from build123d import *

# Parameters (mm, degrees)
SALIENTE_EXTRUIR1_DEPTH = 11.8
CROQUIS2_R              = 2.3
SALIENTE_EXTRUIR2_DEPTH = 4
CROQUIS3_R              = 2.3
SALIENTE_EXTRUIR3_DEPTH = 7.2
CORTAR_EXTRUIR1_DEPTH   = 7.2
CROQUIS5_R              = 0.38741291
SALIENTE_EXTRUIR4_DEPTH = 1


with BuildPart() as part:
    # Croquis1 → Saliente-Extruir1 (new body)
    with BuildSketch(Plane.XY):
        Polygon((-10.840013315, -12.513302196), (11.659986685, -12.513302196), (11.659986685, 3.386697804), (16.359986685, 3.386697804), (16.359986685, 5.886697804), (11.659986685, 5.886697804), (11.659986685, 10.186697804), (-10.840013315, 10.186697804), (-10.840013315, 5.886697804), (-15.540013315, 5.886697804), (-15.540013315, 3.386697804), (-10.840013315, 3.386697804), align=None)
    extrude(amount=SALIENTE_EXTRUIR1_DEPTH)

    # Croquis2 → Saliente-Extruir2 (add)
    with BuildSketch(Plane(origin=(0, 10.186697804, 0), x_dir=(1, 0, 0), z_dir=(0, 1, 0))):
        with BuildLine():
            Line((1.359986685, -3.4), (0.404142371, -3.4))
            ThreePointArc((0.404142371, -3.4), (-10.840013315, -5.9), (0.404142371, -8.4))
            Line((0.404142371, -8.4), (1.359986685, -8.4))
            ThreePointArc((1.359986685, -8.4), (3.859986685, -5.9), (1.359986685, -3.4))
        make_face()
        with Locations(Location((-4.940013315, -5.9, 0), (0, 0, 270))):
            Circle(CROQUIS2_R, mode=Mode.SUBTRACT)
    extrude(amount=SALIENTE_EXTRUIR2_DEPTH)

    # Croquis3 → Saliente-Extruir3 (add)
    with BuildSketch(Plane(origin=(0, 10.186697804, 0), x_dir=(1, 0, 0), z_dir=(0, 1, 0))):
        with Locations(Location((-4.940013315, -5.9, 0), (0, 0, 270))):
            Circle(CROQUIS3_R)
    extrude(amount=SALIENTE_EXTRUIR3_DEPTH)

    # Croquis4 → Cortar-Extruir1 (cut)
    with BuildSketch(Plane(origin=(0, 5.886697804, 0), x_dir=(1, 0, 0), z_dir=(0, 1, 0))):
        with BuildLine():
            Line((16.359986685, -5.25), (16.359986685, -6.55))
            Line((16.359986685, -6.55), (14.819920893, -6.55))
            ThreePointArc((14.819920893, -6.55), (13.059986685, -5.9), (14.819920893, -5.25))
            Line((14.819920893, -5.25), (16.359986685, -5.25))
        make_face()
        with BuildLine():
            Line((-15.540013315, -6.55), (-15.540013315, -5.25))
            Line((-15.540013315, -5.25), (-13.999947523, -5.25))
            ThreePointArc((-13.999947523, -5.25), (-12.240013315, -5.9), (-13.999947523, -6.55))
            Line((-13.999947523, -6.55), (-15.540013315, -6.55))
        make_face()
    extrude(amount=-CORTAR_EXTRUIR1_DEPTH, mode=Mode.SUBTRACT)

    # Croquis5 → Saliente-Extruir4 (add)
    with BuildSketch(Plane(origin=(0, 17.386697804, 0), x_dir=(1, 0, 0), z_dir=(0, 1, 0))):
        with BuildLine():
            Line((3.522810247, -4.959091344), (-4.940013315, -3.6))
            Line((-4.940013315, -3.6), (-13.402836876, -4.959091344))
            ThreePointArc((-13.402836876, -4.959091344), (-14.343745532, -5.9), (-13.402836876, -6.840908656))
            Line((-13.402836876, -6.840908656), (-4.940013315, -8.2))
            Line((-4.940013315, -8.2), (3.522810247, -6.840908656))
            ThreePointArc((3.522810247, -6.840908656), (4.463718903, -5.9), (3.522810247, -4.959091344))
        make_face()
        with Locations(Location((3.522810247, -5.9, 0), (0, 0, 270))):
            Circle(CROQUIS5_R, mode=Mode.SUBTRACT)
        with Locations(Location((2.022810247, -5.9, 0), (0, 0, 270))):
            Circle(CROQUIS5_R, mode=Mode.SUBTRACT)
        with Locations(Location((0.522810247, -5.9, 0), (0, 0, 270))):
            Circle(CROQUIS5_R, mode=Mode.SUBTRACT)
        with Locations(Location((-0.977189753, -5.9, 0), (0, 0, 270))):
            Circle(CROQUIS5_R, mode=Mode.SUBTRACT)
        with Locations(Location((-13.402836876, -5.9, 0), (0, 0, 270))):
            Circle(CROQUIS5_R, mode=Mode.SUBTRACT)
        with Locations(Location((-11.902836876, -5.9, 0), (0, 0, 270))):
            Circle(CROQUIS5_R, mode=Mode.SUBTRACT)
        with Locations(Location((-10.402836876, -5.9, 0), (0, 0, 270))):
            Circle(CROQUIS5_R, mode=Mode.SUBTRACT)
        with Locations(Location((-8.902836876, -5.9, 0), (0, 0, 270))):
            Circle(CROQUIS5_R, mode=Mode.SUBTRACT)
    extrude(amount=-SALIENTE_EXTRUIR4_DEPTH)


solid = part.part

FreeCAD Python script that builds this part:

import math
import FreeCAD as App
import Part
import Sketcher
from FreeCAD import Vector


def add_polygon(sketch, points):
    """Adds a closed chain of lines whose ends are joined by coincident constraints."""
    first, n = sketch.GeometryCount, len(points)
    for a, b in zip(points, points[1:] + points[:1]):
        sketch.addGeometry(Part.LineSegment(App.Vector(*a, 0), App.Vector(*b, 0)), False)
    for i in range(n):
        sketch.addConstraint(Sketcher.Constraint("Coincident", first + i, 2, first + (i + 1) % n, 1))

doc = App.newDocument("Part")
body = doc.addObject("PartDesign::Body", "Body")

# Sketch on XY plane
sketch1 = body.newObject("Sketcher::SketchObject", "Sketch")
sketch1.AttachmentSupport = (doc.getObject("XY_Plane"), [""])
sketch1.MapMode = "FlatFace"
add_polygon(sketch1, [(-10.8, -12.5), (11.7, -12.5), (11.7, 3.4), (16.4, 3.4), (16.4, 5.9), (11.7, 5.9), (11.7, 10.2), (-10.8, 10.2), (-10.8, 5.9), (-15.5, 5.9), (-15.5, 3.4), (-10.8, 3.4)])  # lines 0-11
sketch1.addConstraint(Sketcher.Constraint("Horizontal", 0))
sketch1.addConstraint(Sketcher.Constraint("Vertical", 1))
sketch1.addConstraint(Sketcher.Constraint("Horizontal", 2))
sketch1.addConstraint(Sketcher.Constraint("Vertical", 3))
sketch1.addConstraint(Sketcher.Constraint("Horizontal", 4))
sketch1.addConstraint(Sketcher.Constraint("Vertical", 5))
sketch1.addConstraint(Sketcher.Constraint("Horizontal", 6))
sketch1.addConstraint(Sketcher.Constraint("Vertical", 7))
sketch1.addConstraint(Sketcher.Constraint("Horizontal", 8))
sketch1.addConstraint(Sketcher.Constraint("Vertical", 9))
sketch1.addConstraint(Sketcher.Constraint("Horizontal", 10))
sketch1.addConstraint(Sketcher.Constraint("Vertical", 11))
sketch1.addConstraint(Sketcher.Constraint("Horizontal", 4, 2, 7, 2))
sketch1.addConstraint(Sketcher.Constraint("Horizontal", 2, 2, 9, 2))
sketch1.addConstraint(Sketcher.Constraint("Vertical", 1, 2, 4, 2))
sketch1.addConstraint(Sketcher.Constraint("Vertical", 7, 2, 10, 2))
sketch1.addConstraint(Sketcher.Constraint("Equal", 4, 8))
sketch1.addConstraint(Sketcher.Constraint("DistanceX", 0, 1, 0, 2, 22.5))
sketch1.addConstraint(Sketcher.Constraint("DistanceX", 2, 1, 2, 2, 4.7))
sketch1.addConstraint(Sketcher.Constraint("DistanceY", 1, 1, 1, 2, 15.9))
sketch1.addConstraint(Sketcher.Constraint("DistanceY", 3, 1, 3, 2, 2.5))
sketch1.addConstraint(Sketcher.Constraint("DistanceY", 5, 1, 5, 2, 4.3))
sketch1.addConstraint(Sketcher.Constraint("DistanceX", -1, 1, 0, 2, 11.659987))
sketch1.addConstraint(Sketcher.Constraint("DistanceY", 0, 2, -1, 1, 12.513302))
pad1 = body.newObject("PartDesign::Pad", "Pad")
pad1.Profile = sketch1
pad1.Length = 11.8

# Sketch on XZ plane
sketch2 = body.newObject("Sketcher::SketchObject", "Sketch001")
sketch2.AttachmentSupport = (doc.getObject("XZ_Plane"), [""])
sketch2.MapMode = "FlatFace"
sketch2.AttachmentOffset = App.Placement(Vector(0, 0, -10.186698), App.Rotation())
sketch2.addGeometry(Part.LineSegment(Vector(1.4, 3.4, 0), Vector(0.4, 3.4, 0)), False)
sketch2.addGeometry(Part.ArcOfCircle(Part.Circle(Vector(-4.9, 5.9, 0), Vector(0, 0, 1), 5.9), math.radians(25), math.radians(335)), False)
sketch2.addGeometry(Part.LineSegment(Vector(0.4, 8.4, 0), Vector(1.4, 8.4, 0)), False)
sketch2.addGeometry(Part.ArcOfCircle(Part.Circle(Vector(1.4, 5.9, 0), Vector(0, 0, 1), 2.5), math.radians(-90), math.radians(90)), False)
sketch2.addGeometry(Part.Circle(Vector(-4.9, 5.9, 0), Vector(0, 0, 1), 2.3), False)
sketch2.addConstraint(Sketcher.Constraint("Coincident", 0, 2, 1, 2))
sketch2.addConstraint(Sketcher.Constraint("Coincident", 1, 1, 2, 1))
sketch2.addConstraint(Sketcher.Constraint("Tangent", 2, 2, 3, 2))
sketch2.addConstraint(Sketcher.Constraint("Tangent", 3, 1, 0, 1))
sketch2.addConstraint(Sketcher.Constraint("Horizontal", 0))
sketch2.addConstraint(Sketcher.Constraint("Horizontal", 2))
sketch2.addConstraint(Sketcher.Constraint("Coincident", 4, 3, 1, 3))
sketch2.addConstraint(Sketcher.Constraint("Horizontal", 1, 3, 3, 3))
sketch2.addConstraint(Sketcher.Constraint("Diameter", 4, 4.6))
sketch2.addConstraint(Sketcher.Constraint("Radius", 1, 5.9))
sketch2.addConstraint(Sketcher.Constraint("Radius", 3, 2.5))
sketch2.addConstraint(Sketcher.Constraint("DistanceY", -1, 1, 1, 3, 5.9))
sketch2.addConstraint(Sketcher.Constraint("DistanceX", 1, 3, 3, 3, 6.3))
sketch2.addConstraint(Sketcher.Constraint("DistanceX", 1, 3, -1, 1, 4.940013))
pad2 = body.newObject("PartDesign::Pad", "Pad001")
pad2.Profile = sketch2
pad2.Length = 4
pad2.Reversed = True

# Sketch on XZ plane
sketch3 = body.newObject("Sketcher::SketchObject", "Sketch002")
sketch3.AttachmentSupport = (doc.getObject("XZ_Plane"), [""])
sketch3.MapMode = "FlatFace"
sketch3.AttachmentOffset = App.Placement(Vector(0, 0, -10.186698), App.Rotation())
sketch3.addGeometry(Part.Circle(Vector(-4.9, 5.9, 0), Vector(0, 0, 1), 2.3), False)
sketch3.addConstraint(Sketcher.Constraint("Diameter", 0, 4.6))
sketch3.addConstraint(Sketcher.Constraint("DistanceY", -1, 1, 0, 3, 5.9))
sketch3.addConstraint(Sketcher.Constraint("DistanceX", 0, 3, -1, 1, 4.940013))
pad3 = body.newObject("PartDesign::Pad", "Pad002")
pad3.Profile = sketch3
pad3.Length = 7.2
pad3.Reversed = True

# Sketch on XZ plane
sketch4 = body.newObject("Sketcher::SketchObject", "Sketch003")
sketch4.AttachmentSupport = (doc.getObject("XZ_Plane"), [""])
sketch4.MapMode = "FlatFace"
sketch4.AttachmentOffset = App.Placement(Vector(0, 0, -5.886698), App.Rotation())
sketch4.addGeometry(Part.LineSegment(Vector(16.4, 6.5, 0), Vector(16.4, 5.2, 0)), False)
sketch4.addGeometry(Part.LineSegment(Vector(16.4, 5.2, 0), Vector(14.8, 5.2, 0)), False)
sketch4.addGeometry(Part.ArcOfCircle(Part.Circle(Vector(14.1, 5.9, 0), Vector(0, 0, 1), 1), math.radians(41), math.radians(319)), False)
sketch4.addGeometry(Part.LineSegment(Vector(14.8, 6.5, 0), Vector(16.4, 6.5, 0)), False)
sketch4.addGeometry(Part.LineSegment(Vector(-15.5, 5.2, 0), Vector(-15.5, 6.5, 0)), False)
sketch4.addGeometry(Part.LineSegment(Vector(-15.5, 6.5, 0), Vector(-14, 6.5, 0)), False)
sketch4.addGeometry(Part.ArcOfCircle(Part.Circle(Vector(-13.2, 5.9, 0), Vector(0, 0, 1), 1), math.radians(-139), math.radians(139)), False)
sketch4.addGeometry(Part.LineSegment(Vector(-14, 5.2, 0), Vector(-15.5, 5.2, 0)), False)
sketch4.addConstraint(Sketcher.Constraint("Coincident", 0, 2, 1, 1))
sketch4.addConstraint(Sketcher.Constraint("Coincident", 1, 2, 2, 2))
sketch4.addConstraint(Sketcher.Constraint("Coincident", 2, 1, 3, 1))
sketch4.addConstraint(Sketcher.Constraint("Coincident", 3, 2, 0, 1))
sketch4.addConstraint(Sketcher.Constraint("Coincident", 4, 2, 5, 1))
sketch4.addConstraint(Sketcher.Constraint("Coincident", 5, 2, 6, 2))
sketch4.addConstraint(Sketcher.Constraint("Coincident", 6, 1, 7, 1))
sketch4.addConstraint(Sketcher.Constraint("Coincident", 7, 2, 4, 1))
sketch4.addConstraint(Sketcher.Constraint("Vertical", 0))
sketch4.addConstraint(Sketcher.Constraint("Horizontal", 1))
sketch4.addConstraint(Sketcher.Constraint("Horizontal", 3))
sketch4.addConstraint(Sketcher.Constraint("Vertical", 4))
sketch4.addConstraint(Sketcher.Constraint("Horizontal", 5))
sketch4.addConstraint(Sketcher.Constraint("Horizontal", 7))
sketch4.addConstraint(Sketcher.Constraint("Equal", 2, 6))
sketch4.addConstraint(Sketcher.Constraint("Horizontal", 2, 3, 6, 3))
sketch4.addConstraint(Sketcher.Constraint("Horizontal", 3, 2, 4, 2))
sketch4.addConstraint(Sketcher.Constraint("Horizontal", 1, 2, 6, 1))
sketch4.addConstraint(Sketcher.Constraint("Vertical", 1, 2, 2, 1))
sketch4.addConstraint(Sketcher.Constraint("Equal", 3, 5))
sketch4.addConstraint(Sketcher.Constraint("Radius", 2, 1.0))
sketch4.addConstraint(Sketcher.Constraint("DistanceY", 0, 2, 0, 1, 1.3))
sketch4.addConstraint(Sketcher.Constraint("DistanceY", -1, 1, 2, 3, 5.9))
sketch4.addConstraint(Sketcher.Constraint("DistanceX", 6, 3, 2, 3, 27.3))
sketch4.addConstraint(Sketcher.Constraint("DistanceX", 2, 3, 0, 2, 2.3))
sketch4.addConstraint(Sketcher.Constraint("DistanceX", -1, 1, 1, 2, 14.819921))
pocket1 = body.newObject("PartDesign::Pocket", "Pocket")
pocket1.Profile = sketch4
pocket1.Length = 7.2
pocket1.Reversed = True

# Sketch on XZ plane
sketch5 = body.newObject("Sketcher::SketchObject", "Sketch004")
sketch5.AttachmentSupport = (doc.getObject("XZ_Plane"), [""])
sketch5.MapMode = "FlatFace"
sketch5.AttachmentOffset = App.Placement(Vector(0, 0, -17.386698), App.Rotation())
sketch5.addGeometry(Part.LineSegment(Vector(3.52, 4.96, 0), Vector(-4.94, 3.6, 0)), False)
sketch5.addGeometry(Part.LineSegment(Vector(-4.94, 3.6, 0), Vector(-13.4, 4.96, 0)), False)
sketch5.addGeometry(Part.ArcOfCircle(Part.Circle(Vector(-13.4, 5.9, 0), Vector(0, 0, 1), 0.94), math.radians(90), math.radians(270)), False)
sketch5.addGeometry(Part.LineSegment(Vector(-13.4, 6.84, 0), Vector(-4.94, 8.2, 0)), False)
sketch5.addGeometry(Part.LineSegment(Vector(-4.94, 8.2, 0), Vector(3.52, 6.84, 0)), False)
sketch5.addGeometry(Part.ArcOfCircle(Part.Circle(Vector(3.52, 5.9, 0), Vector(0, 0, 1), 0.94), math.radians(-90), math.radians(90)), False)
sketch5.addGeometry(Part.Circle(Vector(-13.4, 5.9, 0), Vector(0, 0, 1), 0.39), False)
sketch5.addGeometry(Part.Circle(Vector(-11.9, 5.9, 0), Vector(0, 0, 1), 0.39), False)
sketch5.addGeometry(Part.Circle(Vector(-10.4, 5.9, 0), Vector(0, 0, 1), 0.39), False)
sketch5.addGeometry(Part.Circle(Vector(-8.9, 5.9, 0), Vector(0, 0, 1), 0.39), False)
sketch5.addGeometry(Part.Circle(Vector(-0.98, 5.9, 0), Vector(0, 0, 1), 0.39), False)
sketch5.addGeometry(Part.Circle(Vector(0.52, 5.9, 0), Vector(0, 0, 1), 0.39), False)
sketch5.addGeometry(Part.Circle(Vector(2.02, 5.9, 0), Vector(0, 0, 1), 0.39), False)
sketch5.addGeometry(Part.Circle(Vector(3.52, 5.9, 0), Vector(0, 0, 1), 0.39), False)
sketch5.addConstraint(Sketcher.Constraint("Coincident", 0, 2, 1, 1))
sketch5.addConstraint(Sketcher.Constraint("Coincident", 1, 2, 2, 2))
sketch5.addConstraint(Sketcher.Constraint("Coincident", 2, 1, 3, 1))
sketch5.addConstraint(Sketcher.Constraint("Coincident", 3, 2, 4, 1))
sketch5.addConstraint(Sketcher.Constraint("Coincident", 4, 2, 5, 2))
sketch5.addConstraint(Sketcher.Constraint("Coincident", 5, 1, 0, 1))
sketch5.addConstraint(Sketcher.Constraint("Coincident", 6, 3, 2, 3))
sketch5.addConstraint(Sketcher.Constraint("Coincident", 13, 3, 5, 3))
sketch5.addConstraint(Sketcher.Constraint("Equal", 2, 5))
sketch5.addConstraint(Sketcher.Constraint("Equal", 6, 7))
sketch5.addConstraint(Sketcher.Constraint("Equal", 7, 8))
sketch5.addConstraint(Sketcher.Constraint("Equal", 8, 9))
sketch5.addConstraint(Sketcher.Constraint("Equal", 9, 10))
sketch5.addConstraint(Sketcher.Constraint("Equal", 10, 11))
sketch5.addConstraint(Sketcher.Constraint("Equal", 11, 12))
sketch5.addConstraint(Sketcher.Constraint("Equal", 12, 13))
sketch5.addConstraint(Sketcher.Constraint("Parallel", 0, 3))
sketch5.addConstraint(Sketcher.Constraint("Parallel", 1, 4))
sketch5.addConstraint(Sketcher.Constraint("Horizontal", 2, 3, 5, 3))
sketch5.addConstraint(Sketcher.Constraint("Horizontal", 6, 3, 7, 3))
sketch5.addConstraint(Sketcher.Constraint("Horizontal", 7, 3, 8, 3))
sketch5.addConstraint(Sketcher.Constraint("Horizontal", 8, 3, 9, 3))
sketch5.addConstraint(Sketcher.Constraint("Horizontal", 9, 3, 10, 3))
sketch5.addConstraint(Sketcher.Constraint("Horizontal", 10, 3, 11, 3))
sketch5.addConstraint(Sketcher.Constraint("Horizontal", 11, 3, 12, 3))
sketch5.addConstraint(Sketcher.Constraint("Vertical", 6, 3, 1, 2))
sketch5.addConstraint(Sketcher.Constraint("Vertical", 1, 2, 2, 1))
sketch5.addConstraint(Sketcher.Constraint("Vertical", 0, 2, 3, 2))
sketch5.addConstraint(Sketcher.Constraint("Vertical", 13, 3, 4, 2))
sketch5.addConstraint(Sketcher.Constraint("Vertical", 4, 2, 5, 1))
sketch5.addConstraint(Sketcher.Constraint("DistanceX", 2, 3, 8, 3, 3.0))
sketch5.addConstraint(Sketcher.Constraint("DistanceX", 7, 3, 9, 3, 3.0))
sketch5.addConstraint(Sketcher.Constraint("DistanceX", 11, 3, 5, 3, 3.0))
sketch5.addConstraint(Sketcher.Constraint("DistanceX", 10, 3, 12, 3, 3.0))
sketch5.addConstraint(Sketcher.Constraint("DistanceY", -1, 1, 2, 3, 5.9))
sketch5.addConstraint(Sketcher.Constraint("DistanceY", -1, 1, 0, 2, 3.6))
sketch5.addConstraint(Sketcher.Constraint("DistanceX", 2, 3, 7, 3, 1.5))
sketch5.addConstraint(Sketcher.Constraint("DistanceX", 10, 3, 5, 3, 4.5))
sketch5.addConstraint(Sketcher.Constraint("Radius", 2, 0.940909))
sketch5.addConstraint(Sketcher.Constraint("Diameter", 6, 0.774826))
sketch5.addConstraint(Sketcher.Constraint("Distance", 0, 8.571261))
sketch5.addConstraint(Sketcher.Constraint("DistanceX", -1, 1, 5, 3, 3.52281))
pad4 = body.newObject("PartDesign::Pad", "Pad003")
pad4.Profile = sketch5
pad4.Length = 1

doc.recompute()
